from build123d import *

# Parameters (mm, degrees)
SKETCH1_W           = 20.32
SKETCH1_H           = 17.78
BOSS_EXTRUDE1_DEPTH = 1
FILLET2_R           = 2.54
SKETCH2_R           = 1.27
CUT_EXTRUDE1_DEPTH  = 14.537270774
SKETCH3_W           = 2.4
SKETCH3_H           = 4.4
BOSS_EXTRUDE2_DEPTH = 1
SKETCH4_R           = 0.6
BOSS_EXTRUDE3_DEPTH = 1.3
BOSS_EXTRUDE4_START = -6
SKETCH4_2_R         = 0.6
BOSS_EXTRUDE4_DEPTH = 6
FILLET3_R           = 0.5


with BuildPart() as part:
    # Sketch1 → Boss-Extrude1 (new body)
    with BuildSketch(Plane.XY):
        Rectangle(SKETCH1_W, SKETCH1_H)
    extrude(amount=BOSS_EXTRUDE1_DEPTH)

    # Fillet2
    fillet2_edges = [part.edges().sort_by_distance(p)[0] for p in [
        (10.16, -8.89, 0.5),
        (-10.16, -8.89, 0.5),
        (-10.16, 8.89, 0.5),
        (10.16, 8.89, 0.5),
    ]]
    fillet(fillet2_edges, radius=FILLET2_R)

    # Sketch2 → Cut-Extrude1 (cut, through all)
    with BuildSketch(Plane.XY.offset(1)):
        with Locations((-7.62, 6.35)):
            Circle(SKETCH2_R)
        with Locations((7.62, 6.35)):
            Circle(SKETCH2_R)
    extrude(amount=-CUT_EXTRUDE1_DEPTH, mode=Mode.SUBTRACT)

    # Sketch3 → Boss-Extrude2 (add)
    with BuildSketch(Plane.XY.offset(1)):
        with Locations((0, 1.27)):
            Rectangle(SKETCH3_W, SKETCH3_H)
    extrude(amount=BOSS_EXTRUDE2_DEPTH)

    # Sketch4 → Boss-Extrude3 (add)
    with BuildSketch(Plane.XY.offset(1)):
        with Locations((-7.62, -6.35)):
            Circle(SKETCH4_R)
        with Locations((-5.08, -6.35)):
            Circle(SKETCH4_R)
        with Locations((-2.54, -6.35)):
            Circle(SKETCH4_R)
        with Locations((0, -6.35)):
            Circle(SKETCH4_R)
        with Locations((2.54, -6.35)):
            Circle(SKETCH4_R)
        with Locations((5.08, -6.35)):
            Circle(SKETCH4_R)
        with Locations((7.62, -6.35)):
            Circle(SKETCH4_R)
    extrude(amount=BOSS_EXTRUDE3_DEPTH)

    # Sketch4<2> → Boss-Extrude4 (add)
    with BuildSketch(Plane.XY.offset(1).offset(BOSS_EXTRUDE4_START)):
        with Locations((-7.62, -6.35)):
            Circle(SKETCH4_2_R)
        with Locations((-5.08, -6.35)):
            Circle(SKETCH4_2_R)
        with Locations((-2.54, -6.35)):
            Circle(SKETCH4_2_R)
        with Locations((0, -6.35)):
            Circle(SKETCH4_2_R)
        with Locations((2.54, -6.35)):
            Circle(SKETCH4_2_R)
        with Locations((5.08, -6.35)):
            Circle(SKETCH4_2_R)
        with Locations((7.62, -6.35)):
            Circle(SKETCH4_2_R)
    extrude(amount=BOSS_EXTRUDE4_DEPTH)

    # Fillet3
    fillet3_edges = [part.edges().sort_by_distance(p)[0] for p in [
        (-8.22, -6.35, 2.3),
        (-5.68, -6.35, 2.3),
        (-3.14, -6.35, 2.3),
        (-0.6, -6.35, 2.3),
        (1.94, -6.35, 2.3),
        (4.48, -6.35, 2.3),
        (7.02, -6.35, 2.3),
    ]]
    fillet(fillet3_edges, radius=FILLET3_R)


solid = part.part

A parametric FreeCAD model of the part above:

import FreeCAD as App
import Part
import Sketcher

V = App.Vector


def edges_at(feature, points):
    """Names of the edges that pass closest to the given points."""
    edges = feature.Shape.Edges
    near = lambda p: min(range(len(edges)), key=lambda i: edges[i].distToShape(Part.Vertex(*p))[0])
    return sorted({f"Edge{near(p) + 1}" for p in points})

doc = App.newDocument("Part")
body = doc.addObject("PartDesign::Body", "Body")

# Sketch on XY plane
sketch1 = body.newObject("Sketcher::SketchObject", "Sketch")
sketch1.AttachmentSupport = (doc.getObject("XY_Plane"), [""])
sketch1.MapMode = "FlatFace"
sketch1.addGeometry([
    Part.LineSegment(V(-10, 9, 0), V(-10, -9, 0)),
    Part.LineSegment(V(-10, -9, 0), V(10, -9, 0)),
    Part.LineSegment(V(10, -9, 0), V(10, 9, 0)),
    Part.LineSegment(V(10, 9, 0), V(-10, 9, 0)),
], False)
sketch1.addConstraint([
    Sketcher.Constraint("Coincident", 0, 2, 1, 1),
    Sketcher.Constraint("Coincident", 1, 2, 2, 1),
    Sketcher.Constraint("Coincident", 2, 2, 3, 1),
    Sketcher.Constraint("Coincident", 3, 2, 0, 1),
    Sketcher.Constraint("Vertical", 0),
    Sketcher.Constraint("Horizontal", 1),
    Sketcher.Constraint("Vertical", 2),
    Sketcher.Constraint("Horizontal", 3),
    Sketcher.Constraint("Symmetric", 0, 2, 2, 2, -1, 1),
    Sketcher.Constraint("DistanceX", 1, 1, 1, 2, 20.32),
    Sketcher.Constraint("DistanceY", 0, 2, 0, 1, 17.78),
])
pad1 = body.newObject("PartDesign::Pad", "Pad")
pad1.Profile = sketch1
pad1.Length = 1
doc.recompute()

fillet = body.newObject("PartDesign::Fillet", "Fillet")
fillet.Base = (pad1, edges_at(pad1, [
    (10.16, -8.89, 0.5),
    (-10.16, -8.89, 0.5),
    (-10.16, 8.89, 0.5),
    (10.16, 8.89, 0.5),
]))
fillet.Radius = 2.54

# Sketch on XY plane
sketch2 = body.newObject("Sketcher::SketchObject", "Sketch001")
sketch2.AttachmentSupport = (doc.getObject("XY_Plane"), [""])
sketch2.MapMode = "FlatFace"
sketch2.AttachmentOffset = App.Placement(V(0, 0, 1), App.Rotation())
sketch2.addGeometry([
    Part.Circle(V(-7.6, 6.3, 0), V(0, 0, 1), 1.3),
    Part.Circle(V(7.6, 6.3, 0), V(0, 0, 1), 1.3),
], False)
sketch2.addConstraint([
    Sketcher.Constraint("Equal", 0, 1),
    Sketcher.Constraint("Symmetric", 0, 3, 1, 3, -2),
    Sketcher.Constraint("Diameter", 0, 2.54),
    Sketcher.Constraint("DistanceX", 0, 3, -1, 1, 7.62),
    Sketcher.Constraint("DistanceY", -1, 1, 0, 3, 6.35),
])
pocket1 = body.newObject("PartDesign::Pocket", "Pocket")
pocket1.Profile = sketch2
pocket1.Type = "ThroughAll"

# Sketch on XY plane
sketch3 = body.newObject("Sketcher::SketchObject", "Sketch002")
sketch3.AttachmentSupport = (doc.getObject("XY_Plane"), [""])
sketch3.MapMode = "FlatFace"
sketch3.AttachmentOffset = App.Placement(V(0, 0, 1), App.Rotation())
sketch3.addGeometry([
    Part.LineSegment(V(-1.2, 3.5, 0), V(-1.2, -0.9, 0)),
    Part.LineSegment(V(-1.2, -0.9, 0), V(1.2, -0.9, 0)),
    Part.LineSegment(V(1.2, -0.9, 0), V(1.2, 3.5, 0)),
    Part.LineSegment(V(1.2, 3.5, 0), V(-1.2, 3.5, 0)),
], False)
sketch3.addConstraint([
    Sketcher.Constraint("Coincident", 0, 2, 1, 1),
    Sketcher.Constraint("Coincident", 1, 2, 2, 1),
    Sketcher.Constraint("Coincident", 2, 2, 3, 1),
    Sketcher.Constraint("Coincident", 3, 2, 0, 1),
    Sketcher.Constraint("Vertical", 0),
    Sketcher.Constraint("Horizontal", 1),
    Sketcher.Constraint("Vertical", 2),
    Sketcher.Constraint("Horizontal", 3),
    Sketcher.Constraint("DistanceX", 1, 1, 1, 2, 2.4),
    Sketcher.Constraint("DistanceY", 0, 2, 0, 1, 4.4),
    Sketcher.Constraint("DistanceX", 0, 2, -1, 1, 1.2),
    Sketcher.Constraint("DistanceY", 0, 2, -1, 1, 0.93),
])
pad2 = body.newObject("PartDesign::Pad", "Pad001")
pad2.Profile = sketch3
pad2.Length = 1

# Sketch on XY plane
sketch4 = body.newObject("Sketcher::SketchObject", "Sketch003")
sketch4.AttachmentSupport = (doc.getObject("XY_Plane"), [""])
sketch4.MapMode = "FlatFace"
sketch4.AttachmentOffset = App.Placement(V(0, 0, 1), App.Rotation())
sketch4.addGeometry([
    Part.Circle(V(-7.6, -6.3, 0), V(0, 0, 1), 0.6),  # 0
    Part.Circle(V(-5.1, -6.3, 0), V(0, 0, 1), 0.6),  # 1
    Part.Circle(V(-2.5, -6.3, 0), V(0, 0, 1), 0.6),  # 2
    Part.Circle(V(0, -6.3, 0), V(0, 0, 1), 0.6),  # 3
    Part.Circle(V(2.5, -6.3, 0), V(0, 0, 1), 0.6),  # 4
    Part.Circle(V(5.1, -6.3, 0), V(0, 0, 1), 0.6),  # 5
    Part.Circle(V(7.6, -6.3, 0), V(0, 0, 1), 0.6),  # 6
], False)
sketch4.addConstraint([
    Sketcher.Constraint("Equal", 0, 1),
    Sketcher.Constraint("Equal", 1, 2),
    Sketcher.Constraint("Equal", 2, 3),
    Sketcher.Constraint("Equal", 3, 4),
    Sketcher.Constraint("Equal", 4, 5),
    Sketcher.Constraint("Equal", 5, 6),
    Sketcher.Constraint("Symmetric", 2, 3, 4, 3, -2),
    Sketcher.Constraint("Symmetric", 1, 3, 5, 3, -2),
    Sketcher.Constraint("Symmetric", 0, 3, 6, 3, -2),
    Sketcher.Constraint("PointOnObject", 3, 3, -2),
    Sketcher.Constraint("Horizontal", 0, 3, 1, 3),
    Sketcher.Constraint("Horizontal", 1, 3, 2, 3),
    Sketcher.Constraint("Horizontal", 2, 3, 3, 3),
    Sketcher.Constraint("Diameter", 0, 1.2),
    Sketcher.Constraint("DistanceX", 0, 3, 5, 3, 12.7),
    Sketcher.Constraint("DistanceX", 0, 3, -1, 1, 7.62),
    Sketcher.Constraint("DistanceY", 0, 3, -1, 1, 6.35),
    Sketcher.Constraint("DistanceX", 2, 3, -1, 1, 2.54),
])
pad3 = body.newObject("PartDesign::Pad", "Pad002")
pad3.Profile = sketch4
pad3.Length = 1.3

# Sketch on XY plane
sketch5 = body.newObject("Sketcher::SketchObject", "Sketch004")
sketch5.AttachmentSupport = (doc.getObject("XY_Plane"), [""])
sketch5.MapMode = "FlatFace"
sketch5.AttachmentOffset = App.Placement(V(0, 0, -5), App.Rotation())
sketch5.addGeometry([
    Part.Circle(V(-7.6, -6.3, 0), V(0, 0, 1), 0.6),  # 0
    Part.Circle(V(-5.1, -6.3, 0), V(0, 0, 1), 0.6),  # 1
    Part.Circle(V(-2.5, -6.3, 0), V(0, 0, 1), 0.6),  # 2
    Part.Circle(V(0, -6.3, 0), V(0, 0, 1), 0.6),  # 3
    Part.Circle(V(2.5, -6.3, 0), V(0, 0, 1), 0.6),  # 4
    Part.Circle(V(5.1, -6.3, 0), V(0, 0, 1), 0.6),  # 5
    Part.Circle(V(7.6, -6.3, 0), V(0, 0, 1), 0.6),  # 6
], False)
sketch5.addConstraint([
    Sketcher.Constraint("Equal", 0, 1),
    Sketcher.Constraint("Equal", 1, 2),
    Sketcher.Constraint("Equal", 2, 3),
    Sketcher.Constraint("Equal", 3, 4),
    Sketcher.Constraint("Equal", 4, 5),
    Sketcher.Constraint("Equal", 5, 6),
    Sketcher.Constraint("Symmetric", 2, 3, 4, 3, -2),
    Sketcher.Constraint("Symmetric", 1, 3, 5, 3, -2),
    Sketcher.Constraint("Symmetric", 0, 3, 6, 3, -2),
    Sketcher.Constraint("PointOnObject", 3, 3, -2),
    Sketcher.Constraint("Horizontal", 0, 3, 1, 3),
    Sketcher.Constraint("Horizontal", 1, 3, 2, 3),
    Sketcher.Constraint("Horizontal", 2, 3, 3, 3),
    Sketcher.Constraint("Diameter", 0, 1.2),
    Sketcher.Constraint("DistanceX", 0, 3, 5, 3, 12.7),
    Sketcher.Constraint("DistanceX", 0, 3, -1, 1, 7.62),
    Sketcher.Constraint("DistanceY", 0, 3, -1, 1, 6.35),
    Sketcher.Constraint("DistanceX", 2, 3, -1, 1, 2.54),
])
pad4 = body.newObject("PartDesign::Pad", "Pad003")
pad4.Profile = sketch5
pad4.Length = 6
doc.recompute()

fillet2 = body.newObject("PartDesign::Fillet", "Fillet001")
fillet2.Base = (pad4, edges_at(pad4, [
    (-8.22, -6.35, 2.3),
    (-5.68, -6.35, 2.3),
    (-3.14, -6.35, 2.3),
    (-0.6, -6.35, 2.3),
    (1.94, -6.35, 2.3),
    (4.48, -6.35, 2.3),
    (7.02, -6.35, 2.3),
]))
fillet2.Radius = 0.5

doc.recompute()
